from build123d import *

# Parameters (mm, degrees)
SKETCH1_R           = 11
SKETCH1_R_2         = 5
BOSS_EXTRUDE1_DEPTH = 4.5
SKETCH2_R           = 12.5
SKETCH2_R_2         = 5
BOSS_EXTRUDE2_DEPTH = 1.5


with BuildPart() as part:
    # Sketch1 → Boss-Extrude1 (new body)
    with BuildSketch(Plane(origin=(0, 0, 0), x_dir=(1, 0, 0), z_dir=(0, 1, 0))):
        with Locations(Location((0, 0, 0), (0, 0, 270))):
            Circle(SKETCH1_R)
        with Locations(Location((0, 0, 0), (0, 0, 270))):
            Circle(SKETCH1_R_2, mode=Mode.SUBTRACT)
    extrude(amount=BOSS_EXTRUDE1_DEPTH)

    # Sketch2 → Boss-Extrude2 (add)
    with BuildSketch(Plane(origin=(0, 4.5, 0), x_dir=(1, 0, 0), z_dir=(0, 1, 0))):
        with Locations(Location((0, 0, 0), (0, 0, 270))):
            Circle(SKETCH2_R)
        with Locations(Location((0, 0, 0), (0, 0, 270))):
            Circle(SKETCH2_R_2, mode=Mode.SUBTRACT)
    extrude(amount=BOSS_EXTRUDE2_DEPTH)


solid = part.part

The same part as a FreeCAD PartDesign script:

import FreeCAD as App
import Part
import Sketcher
from FreeCAD import Vector

doc = App.newDocument("Part")
params = doc.addObject("Spreadsheet::Sheet", "Params")
for row, (alias, value) in enumerate([
    ("sketch1_diameter", "22 mm"),
    ("sketch1_diameter2", "10 mm"),
    ("pad1_length", "4.5 mm"),
    ("sketch2_diameter", "25 mm"),
    ("sketch2_diameter2", "10 mm"),
    ("pad2_length", "1.5 mm"),
], start=1):
    params.set(f"A{row}", alias)
    params.set(f"B{row}", "=" + value)
    params.setAlias(f"B{row}", alias)

body = doc.addObject("PartDesign::Body", "Body")

# Sketch on XZ plane
sketch1 = body.newObject("Sketcher::SketchObject", "Sketch")
sketch1.AttachmentSupport = (doc.getObject("XZ_Plane"), [""])
sketch1.MapMode = "FlatFace"
sketch1.addGeometry([
    Part.Circle(Vector(0, 0, 0), Vector(0, 0, 1), 11),
    Part.Circle(Vector(0, 0, 0), Vector(0, 0, 1), 5),
], False)
sketch1.addConstraint([
    Sketcher.Constraint("Coincident", 0, 3, -1, 1),
    Sketcher.Constraint("Coincident", 1, 3, -1, 1),
    Sketcher.Constraint("Diameter", 0, 22.0),
    Sketcher.Constraint("Diameter", 1, 10.0),
])
sketch1.setExpression("Constraints[2]", "Params.sketch1_diameter")
sketch1.setExpression("Constraints[3]", "Params.sketch1_diameter2")
pad1 = body.newObject("PartDesign::Pad", "Pad")
pad1.Profile = sketch1
pad1.setExpression("Length", "Params.pad1_length")
pad1.Reversed = True

# Sketch on XZ plane
sketch2 = body.newObject("Sketcher::SketchObject", "Sketch001")
sketch2.AttachmentSupport = (doc.getObject("XZ_Plane"), [""])
sketch2.MapMode = "FlatFace"
sketch2.AttachmentOffset = App.Placement(Vector(0, 0, -4.5), App.Rotation())
sketch2.addGeometry([
    Part.Circle(Vector(0, 0, 0), Vector(0, 0, 1), 12),
    Part.Circle(Vector(0, 0, 0), Vector(0, 0, 1), 5),
], False)
sketch2.addConstraint([
    Sketcher.Constraint("Coincident", 0, 3, -1, 1),
    Sketcher.Constraint("Coincident", 1, 3, -1, 1),
    Sketcher.Constraint("Diameter", 0, 25.0),
    Sketcher.Constraint("Diameter", 1, 10.0),
])
sketch2.setExpression("Constraints[2]", "Params.sketch2_diameter")
sketch2.setExpression("Constraints[3]", "Params.sketch2_diameter2")
pad2 = body.newObject("PartDesign::Pad", "Pad001")
pad2.Profile = sketch2
pad2.setExpression("Length", "Params.pad2_length")
pad2.Reversed = True

doc.recompute()
